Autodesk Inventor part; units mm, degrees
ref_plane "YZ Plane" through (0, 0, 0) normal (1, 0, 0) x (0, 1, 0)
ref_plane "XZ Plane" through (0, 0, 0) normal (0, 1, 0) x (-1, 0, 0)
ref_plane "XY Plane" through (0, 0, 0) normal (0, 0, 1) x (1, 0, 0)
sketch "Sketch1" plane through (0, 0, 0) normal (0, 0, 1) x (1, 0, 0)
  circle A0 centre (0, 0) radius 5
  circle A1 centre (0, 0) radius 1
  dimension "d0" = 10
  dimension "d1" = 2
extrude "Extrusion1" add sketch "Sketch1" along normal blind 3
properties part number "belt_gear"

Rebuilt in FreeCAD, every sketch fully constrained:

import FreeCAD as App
import Part
import Sketcher

V = App.Vector

doc = App.newDocument("Part")
params = doc.addObject("Spreadsheet::Sheet", "Params")
for row, (alias, value) in enumerate([
    ("sketch1_diameter", "10 mm"),
    ("sketch1_diameter2", "2 mm"),
    ("pad1_length", "3 mm"),
], start=1):
    params.set(f"A{row}", alias)
    params.set(f"B{row}", "=" + value)
    params.setAlias(f"B{row}", alias)

body = doc.addObject("PartDesign::Body", "Body")

# Sketch on XY plane
sketch1 = body.newObject("Sketcher::SketchObject", "Sketch")
sketch1.AttachmentSupport = (doc.getObject("XY_Plane"), [""])
sketch1.MapMode = "FlatFace"
sketch1.addGeometry(Part.Circle(V(0, 0, 0), V(0, 0, 1), 5), False)
sketch1.addGeometry(Part.Circle(V(0, 0, 0), V(0, 0, 1), 1), False)
sketch1.addConstraint(Sketcher.Constraint("Coincident", 0, 3, -1, 1))
sketch1.addConstraint(Sketcher.Constraint("Coincident", 1, 3, -1, 1))
sketch1.addConstraint(Sketcher.Constraint("Diameter", 0, 10.0))
sketch1.addConstraint(Sketcher.Constraint("Diameter", 1, 2.0))
sketch1.setExpression("Constraints[2]", "Params.sketch1_diameter")
sketch1.setExpression("Constraints[3]", "Params.sketch1_diameter2")
pad1 = body.newObject("PartDesign::Pad", "Pad")
pad1.Profile = sketch1
pad1.setExpression("Length", "Params.pad1_length")

doc.recompute()
